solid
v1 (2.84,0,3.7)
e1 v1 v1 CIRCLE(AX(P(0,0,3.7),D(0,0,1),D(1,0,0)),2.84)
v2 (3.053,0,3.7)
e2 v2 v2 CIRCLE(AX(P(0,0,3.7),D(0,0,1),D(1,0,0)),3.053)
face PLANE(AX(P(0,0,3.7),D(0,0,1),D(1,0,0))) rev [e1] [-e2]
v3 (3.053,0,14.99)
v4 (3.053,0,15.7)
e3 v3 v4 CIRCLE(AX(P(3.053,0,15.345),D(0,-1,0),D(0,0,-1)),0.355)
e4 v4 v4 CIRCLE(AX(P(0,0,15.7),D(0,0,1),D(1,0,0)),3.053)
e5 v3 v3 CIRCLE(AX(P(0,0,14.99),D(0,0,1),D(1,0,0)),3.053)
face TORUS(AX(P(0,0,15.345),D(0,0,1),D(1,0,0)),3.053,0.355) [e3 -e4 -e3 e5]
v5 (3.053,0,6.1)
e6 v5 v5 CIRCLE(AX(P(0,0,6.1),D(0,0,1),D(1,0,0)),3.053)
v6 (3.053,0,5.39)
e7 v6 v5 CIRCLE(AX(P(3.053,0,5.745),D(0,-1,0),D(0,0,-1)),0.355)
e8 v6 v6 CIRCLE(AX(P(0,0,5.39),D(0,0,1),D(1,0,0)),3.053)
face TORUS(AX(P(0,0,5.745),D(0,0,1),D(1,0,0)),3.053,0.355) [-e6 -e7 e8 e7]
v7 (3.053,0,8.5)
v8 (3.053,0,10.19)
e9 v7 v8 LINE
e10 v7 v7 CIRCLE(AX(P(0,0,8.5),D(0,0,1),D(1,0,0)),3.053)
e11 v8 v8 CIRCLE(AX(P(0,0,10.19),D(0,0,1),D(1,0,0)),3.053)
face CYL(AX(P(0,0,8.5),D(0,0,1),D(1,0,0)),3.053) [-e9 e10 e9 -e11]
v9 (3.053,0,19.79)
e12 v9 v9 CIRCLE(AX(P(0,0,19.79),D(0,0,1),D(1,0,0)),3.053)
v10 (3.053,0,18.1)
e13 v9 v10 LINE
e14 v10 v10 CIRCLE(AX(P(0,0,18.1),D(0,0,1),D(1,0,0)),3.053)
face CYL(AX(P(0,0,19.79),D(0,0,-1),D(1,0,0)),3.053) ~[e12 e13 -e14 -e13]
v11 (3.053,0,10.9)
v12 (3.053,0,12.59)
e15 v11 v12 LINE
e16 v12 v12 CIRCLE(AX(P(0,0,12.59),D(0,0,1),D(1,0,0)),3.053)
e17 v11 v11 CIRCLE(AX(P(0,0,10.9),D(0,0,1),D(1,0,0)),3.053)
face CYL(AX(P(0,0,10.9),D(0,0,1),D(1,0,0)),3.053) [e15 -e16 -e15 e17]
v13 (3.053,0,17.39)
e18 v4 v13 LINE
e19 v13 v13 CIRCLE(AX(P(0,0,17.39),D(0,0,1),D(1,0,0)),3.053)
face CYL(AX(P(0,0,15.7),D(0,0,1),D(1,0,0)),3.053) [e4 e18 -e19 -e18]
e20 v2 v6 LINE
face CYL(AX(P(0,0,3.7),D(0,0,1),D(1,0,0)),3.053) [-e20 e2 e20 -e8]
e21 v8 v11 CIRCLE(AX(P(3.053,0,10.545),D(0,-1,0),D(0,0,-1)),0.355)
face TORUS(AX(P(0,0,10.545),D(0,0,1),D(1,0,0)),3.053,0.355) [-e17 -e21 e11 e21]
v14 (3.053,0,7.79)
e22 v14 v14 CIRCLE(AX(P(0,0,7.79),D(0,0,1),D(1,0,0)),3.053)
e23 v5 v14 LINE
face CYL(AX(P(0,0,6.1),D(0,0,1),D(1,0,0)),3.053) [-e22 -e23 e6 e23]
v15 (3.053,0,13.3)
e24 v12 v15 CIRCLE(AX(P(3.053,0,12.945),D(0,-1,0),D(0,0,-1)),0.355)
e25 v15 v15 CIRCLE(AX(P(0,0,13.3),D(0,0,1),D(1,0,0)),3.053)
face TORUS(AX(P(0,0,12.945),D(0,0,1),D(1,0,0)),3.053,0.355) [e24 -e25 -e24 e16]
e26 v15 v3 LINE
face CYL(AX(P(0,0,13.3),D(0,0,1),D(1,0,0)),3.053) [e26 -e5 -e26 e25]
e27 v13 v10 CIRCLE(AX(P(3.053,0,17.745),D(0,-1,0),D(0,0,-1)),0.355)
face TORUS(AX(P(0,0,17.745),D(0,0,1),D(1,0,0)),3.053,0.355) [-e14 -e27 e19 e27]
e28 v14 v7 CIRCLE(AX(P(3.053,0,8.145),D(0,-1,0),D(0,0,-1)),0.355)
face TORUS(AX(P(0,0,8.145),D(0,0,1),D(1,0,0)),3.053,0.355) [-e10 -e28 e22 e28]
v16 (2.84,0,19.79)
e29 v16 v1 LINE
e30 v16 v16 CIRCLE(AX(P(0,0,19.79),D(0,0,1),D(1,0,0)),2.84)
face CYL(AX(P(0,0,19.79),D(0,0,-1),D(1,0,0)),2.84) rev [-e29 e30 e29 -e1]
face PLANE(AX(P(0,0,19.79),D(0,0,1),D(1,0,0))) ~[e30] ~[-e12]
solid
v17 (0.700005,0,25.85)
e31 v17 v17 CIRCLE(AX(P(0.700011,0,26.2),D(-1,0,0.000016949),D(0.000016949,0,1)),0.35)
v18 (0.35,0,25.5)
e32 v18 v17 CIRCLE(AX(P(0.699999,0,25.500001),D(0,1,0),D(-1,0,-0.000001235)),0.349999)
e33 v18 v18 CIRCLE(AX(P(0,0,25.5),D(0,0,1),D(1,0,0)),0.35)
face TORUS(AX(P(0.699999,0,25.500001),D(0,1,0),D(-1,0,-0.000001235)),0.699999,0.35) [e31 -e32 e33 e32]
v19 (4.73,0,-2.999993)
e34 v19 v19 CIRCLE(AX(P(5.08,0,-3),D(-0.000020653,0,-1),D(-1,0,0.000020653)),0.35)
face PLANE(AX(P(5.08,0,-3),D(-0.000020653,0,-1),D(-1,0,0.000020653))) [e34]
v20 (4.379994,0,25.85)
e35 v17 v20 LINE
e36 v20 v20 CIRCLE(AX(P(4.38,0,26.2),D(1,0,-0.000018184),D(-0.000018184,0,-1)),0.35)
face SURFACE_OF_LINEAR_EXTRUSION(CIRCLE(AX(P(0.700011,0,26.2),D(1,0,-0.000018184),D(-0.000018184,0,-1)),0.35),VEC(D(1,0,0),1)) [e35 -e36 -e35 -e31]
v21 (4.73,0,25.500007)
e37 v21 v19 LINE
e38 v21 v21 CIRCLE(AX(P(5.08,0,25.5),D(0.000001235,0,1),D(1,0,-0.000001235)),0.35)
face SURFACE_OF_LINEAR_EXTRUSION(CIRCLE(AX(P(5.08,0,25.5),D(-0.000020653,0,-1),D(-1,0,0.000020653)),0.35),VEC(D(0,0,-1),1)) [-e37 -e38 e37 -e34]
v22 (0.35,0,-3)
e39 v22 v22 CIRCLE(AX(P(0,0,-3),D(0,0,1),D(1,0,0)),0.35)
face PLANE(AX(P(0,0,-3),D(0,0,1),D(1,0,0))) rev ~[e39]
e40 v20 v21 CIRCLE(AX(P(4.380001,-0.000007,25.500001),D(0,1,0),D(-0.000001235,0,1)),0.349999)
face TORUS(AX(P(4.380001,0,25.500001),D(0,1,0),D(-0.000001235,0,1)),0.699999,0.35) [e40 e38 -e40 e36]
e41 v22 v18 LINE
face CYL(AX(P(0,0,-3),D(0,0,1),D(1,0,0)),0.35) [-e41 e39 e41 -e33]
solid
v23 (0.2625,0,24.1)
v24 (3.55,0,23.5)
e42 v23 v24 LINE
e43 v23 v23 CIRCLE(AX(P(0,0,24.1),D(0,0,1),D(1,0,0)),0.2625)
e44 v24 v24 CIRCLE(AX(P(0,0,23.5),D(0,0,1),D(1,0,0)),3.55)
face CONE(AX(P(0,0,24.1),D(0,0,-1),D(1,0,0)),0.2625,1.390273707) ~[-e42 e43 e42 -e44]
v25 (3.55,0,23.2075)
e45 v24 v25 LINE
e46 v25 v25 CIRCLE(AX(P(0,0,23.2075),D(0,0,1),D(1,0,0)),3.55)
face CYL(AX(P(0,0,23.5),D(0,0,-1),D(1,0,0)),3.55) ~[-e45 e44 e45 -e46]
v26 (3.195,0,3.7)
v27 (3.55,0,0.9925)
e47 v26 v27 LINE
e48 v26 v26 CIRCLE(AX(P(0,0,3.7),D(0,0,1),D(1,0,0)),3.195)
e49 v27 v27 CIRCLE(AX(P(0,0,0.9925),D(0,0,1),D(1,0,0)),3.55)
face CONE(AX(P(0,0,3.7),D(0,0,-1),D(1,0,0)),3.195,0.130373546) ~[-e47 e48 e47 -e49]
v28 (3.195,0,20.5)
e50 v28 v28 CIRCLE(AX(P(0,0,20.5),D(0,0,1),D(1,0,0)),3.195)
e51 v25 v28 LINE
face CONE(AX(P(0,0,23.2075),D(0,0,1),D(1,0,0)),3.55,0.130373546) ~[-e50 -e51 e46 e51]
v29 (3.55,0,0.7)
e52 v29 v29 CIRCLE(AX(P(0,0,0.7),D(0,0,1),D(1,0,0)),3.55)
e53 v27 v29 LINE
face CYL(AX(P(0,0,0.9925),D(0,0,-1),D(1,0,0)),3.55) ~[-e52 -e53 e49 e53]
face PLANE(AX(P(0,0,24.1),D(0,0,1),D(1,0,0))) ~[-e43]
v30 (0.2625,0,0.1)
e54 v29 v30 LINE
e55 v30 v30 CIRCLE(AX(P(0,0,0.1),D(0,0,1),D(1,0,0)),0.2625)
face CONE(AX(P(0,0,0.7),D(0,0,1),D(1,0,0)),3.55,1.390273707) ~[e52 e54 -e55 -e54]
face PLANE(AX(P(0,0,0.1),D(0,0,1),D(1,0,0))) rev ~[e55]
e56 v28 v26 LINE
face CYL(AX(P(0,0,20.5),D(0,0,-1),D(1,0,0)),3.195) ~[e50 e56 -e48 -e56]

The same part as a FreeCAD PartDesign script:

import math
import FreeCAD as App
import Part
import Sketcher
Q = App.Units.Quantity


def add_polygon(sketch, points):
    """Adds a closed chain of lines whose ends are joined by coincident constraints."""
    first, n = sketch.GeometryCount, len(points)
    for a, b in zip(points, points[1:] + points[:1]):
        sketch.addGeometry(Part.LineSegment(App.Vector(*a, 0), App.Vector(*b, 0)), False)
    for i in range(n):
        sketch.addConstraint(Sketcher.Constraint("Coincident", first + i, 2, first + (i + 1) % n, 1))

doc = App.newDocument("Part")
params = doc.addObject("Spreadsheet::Sheet", "Params")
for row, (alias, value) in enumerate([
    ("sketch1_diameter", "0.7 mm"),
    ("sketch2_radius", "0.699999 mm"),
    ("sketch2_height", "28.5 mm"),
    ("sketch3_height", "24 mm"),
    ("sketch3_height2", "16.8 mm"),
    ("revolution_angle", "360 deg"),
    ("revolution2_angle", "360 deg"),
], start=1):
    params.set(f"A{row}", alias)
    params.set(f"B{row}", "=" + value)
    params.setAlias(f"B{row}", alias)

body = doc.addObject("PartDesign::Body", "Body")

sketch1 = doc.addObject("Sketcher::SketchObject", "Sketch")
body.addObject(sketch1)
sketch1.AttachmentSupport = (doc.XY_Plane, [""])
sketch1.MapMode = "FlatFace"
sketch1.AttachmentOffset = App.Placement(App.Vector(0, 0, -2), App.Rotation())
sketch1.addGeometry(Part.Circle(App.Vector(0, 0, 0), App.Vector(0, 0, 1), 0.35), False)
sketch1.addConstraint(Sketcher.Constraint("Coincident", 0, 3, -1, 1))
sketch1.addConstraint(Sketcher.Constraint("Diameter", 0, Q("0.7 mm")))
sketch1.setExpression("Constraints[1]", "Params.sketch1_diameter")

sketch2 = doc.addObject("Sketcher::SketchObject", "Sketch001")
body.addObject(sketch2)
sketch2.AttachmentSupport = (doc.XZ_Plane, [""])
sketch2.MapMode = "FlatFace"
sketch2.addGeometry(Part.LineSegment(App.Vector(0, -3, 0), App.Vector(0, 25.5, 0)), False)
sketch2.addGeometry(Part.ArcOfCircle(Part.Circle(App.Vector(0.7, 25.5, 0), App.Vector(0, 0, 1), 0.7), math.radians(90), math.radians(180)), False)
sketch2.addGeometry(Part.LineSegment(App.Vector(0.7, 26.2, 0), App.Vector(4.4, 26.2, 0)), False)
sketch2.addGeometry(Part.ArcOfCircle(Part.Circle(App.Vector(4.4, 25.5, 0), App.Vector(0, 0, 1), 0.7), math.radians(0), math.radians(90)), False)
sketch2.addGeometry(Part.LineSegment(App.Vector(5.1, 25.5, 0), App.Vector(5.1, -3, 0)), False)
sketch2.addConstraint(Sketcher.Constraint("Tangent", 0, 2, 1, 2))
sketch2.addConstraint(Sketcher.Constraint("Coincident", 1, 1, 2, 1))
sketch2.addConstraint(Sketcher.Constraint("Tangent", 2, 2, 3, 2))
sketch2.addConstraint(Sketcher.Constraint("Tangent", 3, 1, 4, 1))
sketch2.addConstraint(Sketcher.Constraint("Vertical", 0))
sketch2.addConstraint(Sketcher.Constraint("Horizontal", 2))
sketch2.addConstraint(Sketcher.Constraint("Vertical", 4))
sketch2.addConstraint(Sketcher.Constraint("Equal", 1, 3))
sketch2.addConstraint(Sketcher.Constraint("PointOnObject", 0, 1, -2))
sketch2.addConstraint(Sketcher.Constraint("Horizontal", 0, 1, 4, 2))
sketch2.addConstraint(Sketcher.Constraint("Radius", 1, Q("0.699999 mm")))
sketch2.addConstraint(Sketcher.Constraint("DistanceY", 0, 1, 0, 2, Q("28.5 mm")))
sketch2.addConstraint(Sketcher.Constraint("DistanceY", 0, 1, -1, 1, Q("3 mm")))
sketch2.addConstraint(Sketcher.Constraint("DistanceX", -1, 1, 3, 3, Q("4.380001 mm")))
sketch2.addConstraint(Sketcher.Constraint("DistanceX", 2, 1, 2, 2, Q("3.679989 mm")))
sketch2.setExpression("Constraints[10]", "Params.sketch2_radius")
sketch2.setExpression("Constraints[11]", "Params.sketch2_height")
doc.recompute()

additivepipe = doc.addObject("PartDesign::AdditivePipe", "AdditivePipe")
body.addObject(additivepipe)
additivepipe.Profile = sketch1
additivepipe.Spine = (sketch2, ["Edge1", "Edge2", "Edge3", "Edge4", "Edge5"])
body2 = doc.addObject("PartDesign::Body", "Body001")

sketch3 = doc.addObject("Sketcher::SketchObject", "Sketch002")
body2.addObject(sketch3)
sketch3.AttachmentSupport = (doc.getObject("XZ_Plane001"), [""])
sketch3.MapMode = "FlatFace"
add_polygon(sketch3, [(0, 24.1), (0, 0.1), (0.26, 0.1), (3.55, 0.7), (3.55, 0.99), (3.19, 3.7), (3.19, 20.5), (3.55, 23.21), (3.55, 23.5), (0.26, 24.1)])
sketch3.addConstraint(Sketcher.Constraint("Vertical", 0))
sketch3.addConstraint(Sketcher.Constraint("Horizontal", 1))
sketch3.addConstraint(Sketcher.Constraint("Vertical", 3))
sketch3.addConstraint(Sketcher.Constraint("Vertical", 5))
sketch3.addConstraint(Sketcher.Constraint("Vertical", 7))
sketch3.addConstraint(Sketcher.Constraint("Horizontal", 9))
sketch3.addConstraint(Sketcher.Constraint("PointOnObject", 0, 2, -2))
sketch3.addConstraint(Sketcher.Constraint("Vertical", 3, 2, 6, 2))
sketch3.addConstraint(Sketcher.Constraint("Vertical", 1, 2, 8, 2))
sketch3.addConstraint(Sketcher.Constraint("Equal", 3, 7))
sketch3.addConstraint(Sketcher.Constraint("Equal", 4, 6))
sketch3.addConstraint(Sketcher.Constraint("Equal", 2, 8))
sketch3.addConstraint(Sketcher.Constraint("DistanceY", 0, 2, 0, 1, Q("24 mm")))
sketch3.addConstraint(Sketcher.Constraint("DistanceY", 5, 1, 5, 2, Q("16.8 mm")))
sketch3.addConstraint(Sketcher.Constraint("DistanceY", 2, 2, 4, 2, Q("3 mm")))
sketch3.addConstraint(Sketcher.Constraint("DistanceY", -1, 1, 0, 2, Q("0.1 mm")))
sketch3.addConstraint(Sketcher.Constraint("DistanceX", -1, 1, 2, 2, Q("3.55 mm")))
sketch3.addConstraint(Sketcher.Constraint("DistanceX", 1, 1, 1, 2, Q("0.2625 mm")))
sketch3.addConstraint(Sketcher.Constraint("DistanceY", 3, 1, 3, 2, Q("0.2925 mm")))
sketch3.addConstraint(Sketcher.Constraint("DistanceX", -1, 1, 4, 2, Q("3.195 mm")))
sketch3.setExpression("Constraints[22]", "Params.sketch3_height")
sketch3.setExpression("Constraints[23]", "Params.sketch3_height2")
revolution = doc.addObject("PartDesign::Revolution", "Revolution")
body2.addObject(revolution)
revolution.Profile = sketch3
revolution.ReferenceAxis = (sketch3, ["V_Axis"])
revolution.setExpression("Angle", "Params.revolution_angle")
body3 = doc.addObject("PartDesign::Body", "Body002")

sketch4 = doc.addObject("Sketcher::SketchObject", "Sketch003")
body3.addObject(sketch4)
sketch4.AttachmentSupport = (doc.getObject("XZ_Plane002"), [""])
sketch4.MapMode = "FlatFace"
sketch4.addGeometry(Part.LineSegment(App.Vector(2.84, 19.79, 0), App.Vector(2.84, 3.7, 0)), False)
sketch4.addGeometry(Part.LineSegment(App.Vector(2.84, 3.7, 0), App.Vector(3.05, 3.7, 0)), False)
sketch4.addGeometry(Part.LineSegment(App.Vector(3.05, 3.7, 0), App.Vector(3.05, 5.39, 0)), False)
sketch4.addGeometry(Part.ArcOfCircle(Part.Circle(App.Vector(3.05, 5.75, 0), App.Vector(0, 0, 1), 0.35), math.radians(-90), math.radians(90)), False)
sketch4.addGeometry(Part.LineSegment(App.Vector(3.05, 6.1, 0), App.Vector(3.05, 7.79, 0)), False)
sketch4.addGeometry(Part.ArcOfCircle(Part.Circle(App.Vector(3.05, 8.14, 0), App.Vector(0, 0, 1), 0.35), math.radians(-90), math.radians(90)), False)
sketch4.addGeometry(Part.LineSegment(App.Vector(3.05, 8.5, 0), App.Vector(3.05, 10.19, 0)), False)
sketch4.addGeometry(Part.ArcOfCircle(Part.Circle(App.Vector(3.05, 10.54, 0), App.Vector(0, 0, 1), 0.35), math.radians(-90), math.radians(90)), False)
sketch4.addGeometry(Part.LineSegment(App.Vector(3.05, 10.9, 0), App.Vector(3.05, 12.59, 0)), False)
sketch4.addGeometry(Part.ArcOfCircle(Part.Circle(App.Vector(3.05, 12.95, 0), App.Vector(0, 0, 1), 0.35), math.radians(-90), math.radians(90)), False)
sketch4.addGeometry(Part.LineSegment(App.Vector(3.05, 13.3, 0), App.Vector(3.05, 14.99, 0)), False)
sketch4.addGeometry(Part.ArcOfCircle(Part.Circle(App.Vector(3.05, 15.35, 0), App.Vector(0, 0, 1), 0.35), math.radians(-90), math.radians(90)), False)
sketch4.addGeometry(Part.LineSegment(App.Vector(3.05, 15.7, 0), App.Vector(3.05, 17.39, 0)), False)
sketch4.addGeometry(Part.ArcOfCircle(Part.Circle(App.Vector(3.05, 17.75, 0), App.Vector(0, 0, 1), 0.35), math.radians(-90), math.radians(90)), False)
sketch4.addGeometry(Part.LineSegment(App.Vector(3.05, 18.1, 0), App.Vector(3.05, 19.79, 0)), False)
sketch4.addGeometry(Part.LineSegment(App.Vector(3.05, 19.79, 0), App.Vector(2.84, 19.79, 0)), False)
sketch4.addConstraint(Sketcher.Constraint("Coincident", 0, 2, 1, 1))
sketch4.addConstraint(Sketcher.Constraint("Coincident", 1, 2, 2, 1))
sketch4.addConstraint(Sketcher.Constraint("Coincident", 2, 2, 3, 1))
sketch4.addConstraint(Sketcher.Constraint("Coincident", 3, 2, 4, 1))
sketch4.addConstraint(Sketcher.Constraint("Coincident", 4, 2, 5, 1))
sketch4.addConstraint(Sketcher.Constraint("Coincident", 5, 2, 6, 1))
sketch4.addConstraint(Sketcher.Constraint("Coincident", 6, 2, 7, 1))
sketch4.addConstraint(Sketcher.Constraint("Coincident", 7, 2, 8, 1))
sketch4.addConstraint(Sketcher.Constraint("Coincident", 8, 2, 9, 1))
sketch4.addConstraint(Sketcher.Constraint("Coincident", 9, 2, 10, 1))
sketch4.addConstraint(Sketcher.Constraint("Coincident", 10, 2, 11, 1))
sketch4.addConstraint(Sketcher.Constraint("Coincident", 11, 2, 12, 1))
sketch4.addConstraint(Sketcher.Constraint("Coincident", 12, 2, 13, 1))
sketch4.addConstraint(Sketcher.Constraint("Coincident", 13, 2, 14, 1))
sketch4.addConstraint(Sketcher.Constraint("Coincident", 14, 2, 15, 1))
sketch4.addConstraint(Sketcher.Constraint("Coincident", 15, 2, 0, 1))
sketch4.addConstraint(Sketcher.Constraint("Vertical", 0))
sketch4.addConstraint(Sketcher.Constraint("Horizontal", 1))
sketch4.addConstraint(Sketcher.Constraint("Vertical", 2))
sketch4.addConstraint(Sketcher.Constraint("Vertical", 4))
sketch4.addConstraint(Sketcher.Constraint("Vertical", 6))
sketch4.addConstraint(Sketcher.Constraint("Vertical", 8))
sketch4.addConstraint(Sketcher.Constraint("Vertical", 10))
sketch4.addConstraint(Sketcher.Constraint("Vertical", 12))
sketch4.addConstraint(Sketcher.Constraint("Vertical", 14))
sketch4.addConstraint(Sketcher.Constraint("Horizontal", 15))
sketch4.addConstraint(Sketcher.Constraint("Equal", 3, 5))
sketch4.addConstraint(Sketcher.Constraint("Equal", 5, 7))
sketch4.addConstraint(Sketcher.Constraint("Equal", 7, 9))
sketch4.addConstraint(Sketcher.Constraint("Equal", 9, 11))
sketch4.addConstraint(Sketcher.Constraint("Equal", 11, 13))
sketch4.addConstraint(Sketcher.Constraint("Vertical", 3, 3, 5, 3))
sketch4.addConstraint(Sketcher.Constraint("Vertical", 5, 3, 7, 3))
sketch4.addConstraint(Sketcher.Constraint("Vertical", 7, 3, 9, 3))
sketch4.addConstraint(Sketcher.Constraint("Vertical", 9, 3, 11, 3))
sketch4.addConstraint(Sketcher.Constraint("Vertical", 11, 3, 13, 3))
sketch4.addConstraint(Sketcher.Constraint("Vertical", 13, 3, 1, 2))
sketch4.addConstraint(Sketcher.Constraint("Vertical", 2, 2, 3, 2))
sketch4.addConstraint(Sketcher.Constraint("Vertical", 4, 2, 5, 2))
sketch4.addConstraint(Sketcher.Constraint("Vertical", 6, 2, 7, 2))
sketch4.addConstraint(Sketcher.Constraint("Vertical", 8, 2, 9, 2))
sketch4.addConstraint(Sketcher.Constraint("Vertical", 10, 2, 11, 2))
sketch4.addConstraint(Sketcher.Constraint("Vertical", 12, 2, 13, 2))
sketch4.addConstraint(Sketcher.Constraint("Equal", 2, 4))
sketch4.addConstraint(Sketcher.Constraint("Equal", 4, 6))
sketch4.addConstraint(Sketcher.Constraint("Equal", 6, 8))
sketch4.addConstraint(Sketcher.Constraint("Equal", 8, 10))
sketch4.addConstraint(Sketcher.Constraint("Equal", 10, 12))
sketch4.addConstraint(Sketcher.Constraint("Equal", 12, 14))
sketch4.addConstraint(Sketcher.Constraint("Radius", 3, Q("0.355 mm")))
sketch4.addConstraint(Sketcher.Constraint("DistanceY", 3, 3, 13, 3, Q("12 mm")))
sketch4.addConstraint(Sketcher.Constraint("DistanceY", -1, 1, 0, 2, Q("3.7 mm")))
sketch4.addConstraint(Sketcher.Constraint("DistanceX", 1, 1, 1, 2, Q("0.213 mm")))
sketch4.addConstraint(Sketcher.Constraint("DistanceX", -1, 1, 0, 2, Q("2.84 mm")))
revolution2 = doc.addObject("PartDesign::Revolution", "Revolution001")
body3.addObject(revolution2)
revolution2.Profile = sketch4
revolution2.ReferenceAxis = (sketch4, ["V_Axis"])
revolution2.setExpression("Angle", "Params.revolution2_angle")

doc.recompute()
